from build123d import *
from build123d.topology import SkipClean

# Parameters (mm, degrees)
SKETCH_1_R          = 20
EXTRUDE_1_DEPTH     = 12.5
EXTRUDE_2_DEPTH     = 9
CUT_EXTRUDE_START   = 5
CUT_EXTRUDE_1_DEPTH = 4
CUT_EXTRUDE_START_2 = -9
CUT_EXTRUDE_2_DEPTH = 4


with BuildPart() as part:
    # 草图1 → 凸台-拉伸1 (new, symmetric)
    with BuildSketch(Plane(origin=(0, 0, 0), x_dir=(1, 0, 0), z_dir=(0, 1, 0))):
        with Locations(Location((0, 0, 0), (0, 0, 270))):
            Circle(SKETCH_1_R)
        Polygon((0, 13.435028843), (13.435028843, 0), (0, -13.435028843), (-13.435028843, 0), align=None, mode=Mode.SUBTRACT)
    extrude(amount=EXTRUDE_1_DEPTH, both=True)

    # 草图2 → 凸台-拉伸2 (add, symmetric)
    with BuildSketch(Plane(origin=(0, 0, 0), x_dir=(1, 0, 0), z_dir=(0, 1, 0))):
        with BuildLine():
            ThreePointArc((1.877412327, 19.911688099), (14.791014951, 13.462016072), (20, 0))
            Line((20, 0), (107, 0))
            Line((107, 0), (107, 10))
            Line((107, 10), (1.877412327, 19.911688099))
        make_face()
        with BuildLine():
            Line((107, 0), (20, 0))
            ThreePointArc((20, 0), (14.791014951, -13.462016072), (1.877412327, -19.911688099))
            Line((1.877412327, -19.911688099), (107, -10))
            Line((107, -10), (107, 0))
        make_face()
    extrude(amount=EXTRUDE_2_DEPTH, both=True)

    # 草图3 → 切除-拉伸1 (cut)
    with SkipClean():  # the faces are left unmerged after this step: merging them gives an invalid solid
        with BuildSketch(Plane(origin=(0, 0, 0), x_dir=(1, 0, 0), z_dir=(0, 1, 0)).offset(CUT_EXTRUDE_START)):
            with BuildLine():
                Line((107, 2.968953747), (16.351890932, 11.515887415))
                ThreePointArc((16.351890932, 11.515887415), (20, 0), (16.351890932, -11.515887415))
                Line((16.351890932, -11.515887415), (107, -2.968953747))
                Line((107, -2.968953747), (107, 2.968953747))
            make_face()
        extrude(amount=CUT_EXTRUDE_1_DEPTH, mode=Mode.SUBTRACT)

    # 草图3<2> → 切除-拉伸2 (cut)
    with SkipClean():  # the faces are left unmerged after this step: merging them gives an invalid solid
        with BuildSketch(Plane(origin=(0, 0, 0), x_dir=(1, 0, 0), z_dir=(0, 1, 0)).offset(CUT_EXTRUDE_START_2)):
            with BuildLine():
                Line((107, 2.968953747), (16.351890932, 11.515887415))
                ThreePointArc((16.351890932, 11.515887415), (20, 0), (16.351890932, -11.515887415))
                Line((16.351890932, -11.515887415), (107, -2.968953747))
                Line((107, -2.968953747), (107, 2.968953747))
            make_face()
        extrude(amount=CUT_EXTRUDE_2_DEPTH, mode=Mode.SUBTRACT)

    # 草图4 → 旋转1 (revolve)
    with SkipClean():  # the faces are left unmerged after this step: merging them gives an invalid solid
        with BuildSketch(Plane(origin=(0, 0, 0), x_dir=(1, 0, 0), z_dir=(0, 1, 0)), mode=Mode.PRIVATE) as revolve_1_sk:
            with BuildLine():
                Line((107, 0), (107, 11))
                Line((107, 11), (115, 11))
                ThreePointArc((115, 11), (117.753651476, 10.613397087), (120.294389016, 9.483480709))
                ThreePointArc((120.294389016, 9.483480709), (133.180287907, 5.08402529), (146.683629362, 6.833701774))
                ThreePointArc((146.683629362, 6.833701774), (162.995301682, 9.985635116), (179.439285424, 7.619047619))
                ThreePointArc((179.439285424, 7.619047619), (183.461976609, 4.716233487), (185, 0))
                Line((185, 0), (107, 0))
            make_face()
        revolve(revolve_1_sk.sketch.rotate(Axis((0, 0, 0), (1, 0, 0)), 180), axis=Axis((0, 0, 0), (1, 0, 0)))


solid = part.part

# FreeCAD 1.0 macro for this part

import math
import FreeCAD as App
import Part
import Sketcher

V = App.Vector

doc = App.newDocument("Part")
body = doc.addObject("PartDesign::Body", "Body")

sketch1 = doc.addObject("Sketcher::SketchObject", "Sketch")
body.addObject(sketch1)
sketch1.AttachmentSupport = (doc.XZ_Plane, [""])
sketch1.MapMode = "FlatFace"
sketch1.addGeometry([
    Part.Circle(V(0, 0, 0), V(0, 0, 1), 20),
    Part.LineSegment(V(-13, 0, 0), V(0, -13, 0)),
    Part.LineSegment(V(0, -13, 0), V(13, 0, 0)),
    Part.LineSegment(V(13, 0, 0), V(0, 13, 0)),
    Part.LineSegment(V(0, 13, 0), V(-13, 0, 0)),
], False)
sketch1.addConstraint([
    Sketcher.Constraint("Coincident", 1, 2, 2, 1),
    Sketcher.Constraint("Coincident", 2, 2, 3, 1),
    Sketcher.Constraint("Coincident", 3, 2, 4, 1),
    Sketcher.Constraint("Coincident", 4, 2, 1, 1),
    Sketcher.Constraint("Coincident", 0, 3, -1, 1),
    Sketcher.Constraint("Symmetric", 1, 2, 3, 2, -1, 1),
    Sketcher.Constraint("Symmetric", 2, 2, 4, 2, -1, 1),
    Sketcher.Constraint("PointOnObject", 1, 2, -2),
    Sketcher.Constraint("PointOnObject", 2, 2, -1),
    Sketcher.Constraint("Perpendicular", 1, 2),
    Sketcher.Constraint("Diameter", 0, 40.0),
    Sketcher.Constraint("Distance", 1, 19.0),
])
pad1 = doc.addObject("PartDesign::Pad", "Pad")
body.addObject(pad1)
pad1.Profile = sketch1
pad1.Length = 25
pad1.Midplane = True

sketch2 = doc.addObject("Sketcher::SketchObject", "Sketch001")
body.addObject(sketch2)
sketch2.AttachmentSupport = (doc.XZ_Plane, [""])
sketch2.MapMode = "FlatFace"
sketch2.addGeometry([
    Part.ArcOfCircle(Part.Circle(V(0, 0, 0), V(0, 0, 1), 20), math.radians(-85), math.radians(0)),
    Part.ArcOfCircle(Part.Circle(V(0, 0, 0), V(0, 0, 1), 20), math.radians(0), math.radians(85)),
    Part.LineSegment(V(2, 20, 0), V(107, 10, 0)),
    Part.LineSegment(V(107, 10, 0), V(107, -10, 0)),
    Part.LineSegment(V(107, -10, 0), V(2, -20, 0)),
], False)
sketch2.addConstraint([
    Sketcher.Constraint("Tangent", 0, 2, 1, 1),
    Sketcher.Constraint("Tangent", 1, 2, 2, 1),
    Sketcher.Constraint("Coincident", 2, 2, 3, 1),
    Sketcher.Constraint("Coincident", 3, 2, 4, 1),
    Sketcher.Constraint("Tangent", 4, 2, 0, 1),
    Sketcher.Constraint("Vertical", 3),
    Sketcher.Constraint("Coincident", 0, 3, -1, 1),
    Sketcher.Constraint("Equal", 0, 1),
    Sketcher.Constraint("PointOnObject", 0, 2, -1),
    Sketcher.Constraint("Vertical", 1, 2, 4, 2),
    Sketcher.Constraint("Radius", 0, 20.0),
    Sketcher.Constraint("DistanceY", 3, 2, 3, 1, 20.0),
    Sketcher.Constraint("DistanceX", -1, 1, 2, 2, 107.0),
])
pad2 = doc.addObject("PartDesign::Pad", "Pad001")
body.addObject(pad2)
pad2.Profile = sketch2
pad2.Length = 18
pad2.Midplane = True

sketch3 = doc.addObject("Sketcher::SketchObject", "Sketch002")
body.addObject(sketch3)
sketch3.AttachmentSupport = (doc.XZ_Plane, [""])
sketch3.MapMode = "FlatFace"
sketch3.AttachmentOffset = App.Placement(V(0, 0, -5), App.Rotation())
sketch3.addGeometry([
    Part.LineSegment(V(107, -3, 0), V(16, -12, 0)),
    Part.ArcOfCircle(Part.Circle(V(0, 0, 0), V(0, 0, 1), 20), math.radians(-35), math.radians(35)),
    Part.LineSegment(V(16, 12, 0), V(107, 3, 0)),
    Part.LineSegment(V(107, 3, 0), V(107, -3, 0)),
], False)
sketch3.addConstraint([
    Sketcher.Constraint("Coincident", 0, 2, 1, 1),
    Sketcher.Constraint("Coincident", 1, 2, 2, 1),
    Sketcher.Constraint("Coincident", 2, 2, 3, 1),
    Sketcher.Constraint("Coincident", 3, 2, 0, 1),
    Sketcher.Constraint("Vertical", 3),
    Sketcher.Constraint("Coincident", 1, 3, -1, 1),
    Sketcher.Constraint("Vertical", 0, 2, 1, 2),
    Sketcher.Constraint("Equal", 0, 2),
    Sketcher.Constraint("Radius", 1, 20.0),
    Sketcher.Constraint("DistanceX", -1, 1, 2, 2, 107.0),
    Sketcher.Constraint("Distance", 0, 91.05015),
    Sketcher.Constraint("DistanceY", 3, 2, 3, 1, 5.937907),
])
pocket1 = doc.addObject("PartDesign::Pocket", "Pocket")
body.addObject(pocket1)
pocket1.Profile = sketch3
pocket1.Length = 4

sketch4 = doc.addObject("Sketcher::SketchObject", "Sketch003")
body.addObject(sketch4)
sketch4.AttachmentSupport = (doc.XZ_Plane, [""])
sketch4.MapMode = "FlatFace"
sketch4.AttachmentOffset = App.Placement(V(0, 0, 9), App.Rotation())
sketch4.addGeometry([
    Part.LineSegment(V(107, -3, 0), V(16, -12, 0)),
    Part.ArcOfCircle(Part.Circle(V(0, 0, 0), V(0, 0, 1), 20), math.radians(-35), math.radians(35)),
    Part.LineSegment(V(16, 12, 0), V(107, 3, 0)),
    Part.LineSegment(V(107, 3, 0), V(107, -3, 0)),
], False)
sketch4.addConstraint([
    Sketcher.Constraint("Coincident", 0, 2, 1, 1),
    Sketcher.Constraint("Coincident", 1, 2, 2, 1),
    Sketcher.Constraint("Coincident", 2, 2, 3, 1),
    Sketcher.Constraint("Coincident", 3, 2, 0, 1),
    Sketcher.Constraint("Vertical", 3),
    Sketcher.Constraint("Coincident", 1, 3, -1, 1),
    Sketcher.Constraint("Vertical", 0, 2, 1, 2),
    Sketcher.Constraint("Equal", 0, 2),
    Sketcher.Constraint("Radius", 1, 20.0),
    Sketcher.Constraint("DistanceX", -1, 1, 2, 2, 107.0),
    Sketcher.Constraint("Distance", 0, 91.05015),
    Sketcher.Constraint("DistanceY", 3, 2, 3, 1, 5.937907),
])
pocket2 = doc.addObject("PartDesign::Pocket", "Pocket001")
body.addObject(pocket2)
pocket2.Profile = sketch4
pocket2.Length = 4

sketch5 = doc.addObject("Sketcher::SketchObject", "Sketch004")
body.addObject(sketch5)
sketch5.AttachmentSupport = (doc.XZ_Plane, [""])
sketch5.MapMode = "FlatFace"
sketch5.addGeometry([
    Part.LineSegment(V(107, -11, 0), V(107, 0, 0)),
    Part.LineSegment(V(107, 0, 0), V(185, 0, 0)),
    Part.ArcOfCircle(Part.Circle(V(177, 0, 0), V(0, 0, 1), 8), math.radians(-72), math.radians(0)),
    Part.ArcOfCircle(Part.Circle(V(164, 40, 0), V(0, 0, 1), 50), math.radians(-110), math.radians(-72)),
    Part.ArcOfCircle(Part.Circle(V(136, -35, 0), V(0, 0, 1), 30), math.radians(70), math.radians(122)),
    Part.ArcOfCircle(Part.Circle(V(115, -1, 0), V(0, 0, 1), 10), math.radians(-90), math.radians(-58)),
    Part.LineSegment(V(115, -11, 0), V(107, -11, 0)),
], False)
sketch5.addConstraint([
    Sketcher.Constraint("Coincident", 0, 2, 1, 1),
    Sketcher.Constraint("Coincident", 1, 2, 2, 2),
    Sketcher.Constraint("Tangent", 2, 1, 3, 2),
    Sketcher.Constraint("Tangent", 3, 1, 4, 1),
    Sketcher.Constraint("Tangent", 4, 2, 5, 2),
    Sketcher.Constraint("Tangent", 5, 1, 6, 1),
    Sketcher.Constraint("Coincident", 6, 2, 0, 1),
    Sketcher.Constraint("Vertical", 0),
    Sketcher.Constraint("Horizontal", 1),
    Sketcher.Constraint("Horizontal", 6),
    Sketcher.Constraint("PointOnObject", 2, 3, -1),
    Sketcher.Constraint("PointOnObject", 0, 2, -1),
    Sketcher.Constraint("Radius", 2, 8.0),
    Sketcher.Constraint("Radius", 3, 50.0),
    Sketcher.Constraint("Radius", 4, 30.0),
    Sketcher.Constraint("Radius", 5, 10.0),
    Sketcher.Constraint("DistanceX", 1, 1, 1, 2, 78.0),
    Sketcher.Constraint("DistanceX", 6, 2, 6, 1, 8.0),
    Sketcher.Constraint("DistanceY", 0, 1, 0, 2, 11.0),
    Sketcher.Constraint("DistanceX", -1, 1, 2, 3, 177.0),
    Sketcher.Constraint("DistanceY", -1, 1, 3, 3, 40.0),
])
revolution = doc.addObject("PartDesign::Revolution", "Revolution")
body.addObject(revolution)
revolution.Profile = sketch5
revolution.ReferenceAxis = (sketch5, ["H_Axis"])
revolution.Angle = 360

doc.recompute()
